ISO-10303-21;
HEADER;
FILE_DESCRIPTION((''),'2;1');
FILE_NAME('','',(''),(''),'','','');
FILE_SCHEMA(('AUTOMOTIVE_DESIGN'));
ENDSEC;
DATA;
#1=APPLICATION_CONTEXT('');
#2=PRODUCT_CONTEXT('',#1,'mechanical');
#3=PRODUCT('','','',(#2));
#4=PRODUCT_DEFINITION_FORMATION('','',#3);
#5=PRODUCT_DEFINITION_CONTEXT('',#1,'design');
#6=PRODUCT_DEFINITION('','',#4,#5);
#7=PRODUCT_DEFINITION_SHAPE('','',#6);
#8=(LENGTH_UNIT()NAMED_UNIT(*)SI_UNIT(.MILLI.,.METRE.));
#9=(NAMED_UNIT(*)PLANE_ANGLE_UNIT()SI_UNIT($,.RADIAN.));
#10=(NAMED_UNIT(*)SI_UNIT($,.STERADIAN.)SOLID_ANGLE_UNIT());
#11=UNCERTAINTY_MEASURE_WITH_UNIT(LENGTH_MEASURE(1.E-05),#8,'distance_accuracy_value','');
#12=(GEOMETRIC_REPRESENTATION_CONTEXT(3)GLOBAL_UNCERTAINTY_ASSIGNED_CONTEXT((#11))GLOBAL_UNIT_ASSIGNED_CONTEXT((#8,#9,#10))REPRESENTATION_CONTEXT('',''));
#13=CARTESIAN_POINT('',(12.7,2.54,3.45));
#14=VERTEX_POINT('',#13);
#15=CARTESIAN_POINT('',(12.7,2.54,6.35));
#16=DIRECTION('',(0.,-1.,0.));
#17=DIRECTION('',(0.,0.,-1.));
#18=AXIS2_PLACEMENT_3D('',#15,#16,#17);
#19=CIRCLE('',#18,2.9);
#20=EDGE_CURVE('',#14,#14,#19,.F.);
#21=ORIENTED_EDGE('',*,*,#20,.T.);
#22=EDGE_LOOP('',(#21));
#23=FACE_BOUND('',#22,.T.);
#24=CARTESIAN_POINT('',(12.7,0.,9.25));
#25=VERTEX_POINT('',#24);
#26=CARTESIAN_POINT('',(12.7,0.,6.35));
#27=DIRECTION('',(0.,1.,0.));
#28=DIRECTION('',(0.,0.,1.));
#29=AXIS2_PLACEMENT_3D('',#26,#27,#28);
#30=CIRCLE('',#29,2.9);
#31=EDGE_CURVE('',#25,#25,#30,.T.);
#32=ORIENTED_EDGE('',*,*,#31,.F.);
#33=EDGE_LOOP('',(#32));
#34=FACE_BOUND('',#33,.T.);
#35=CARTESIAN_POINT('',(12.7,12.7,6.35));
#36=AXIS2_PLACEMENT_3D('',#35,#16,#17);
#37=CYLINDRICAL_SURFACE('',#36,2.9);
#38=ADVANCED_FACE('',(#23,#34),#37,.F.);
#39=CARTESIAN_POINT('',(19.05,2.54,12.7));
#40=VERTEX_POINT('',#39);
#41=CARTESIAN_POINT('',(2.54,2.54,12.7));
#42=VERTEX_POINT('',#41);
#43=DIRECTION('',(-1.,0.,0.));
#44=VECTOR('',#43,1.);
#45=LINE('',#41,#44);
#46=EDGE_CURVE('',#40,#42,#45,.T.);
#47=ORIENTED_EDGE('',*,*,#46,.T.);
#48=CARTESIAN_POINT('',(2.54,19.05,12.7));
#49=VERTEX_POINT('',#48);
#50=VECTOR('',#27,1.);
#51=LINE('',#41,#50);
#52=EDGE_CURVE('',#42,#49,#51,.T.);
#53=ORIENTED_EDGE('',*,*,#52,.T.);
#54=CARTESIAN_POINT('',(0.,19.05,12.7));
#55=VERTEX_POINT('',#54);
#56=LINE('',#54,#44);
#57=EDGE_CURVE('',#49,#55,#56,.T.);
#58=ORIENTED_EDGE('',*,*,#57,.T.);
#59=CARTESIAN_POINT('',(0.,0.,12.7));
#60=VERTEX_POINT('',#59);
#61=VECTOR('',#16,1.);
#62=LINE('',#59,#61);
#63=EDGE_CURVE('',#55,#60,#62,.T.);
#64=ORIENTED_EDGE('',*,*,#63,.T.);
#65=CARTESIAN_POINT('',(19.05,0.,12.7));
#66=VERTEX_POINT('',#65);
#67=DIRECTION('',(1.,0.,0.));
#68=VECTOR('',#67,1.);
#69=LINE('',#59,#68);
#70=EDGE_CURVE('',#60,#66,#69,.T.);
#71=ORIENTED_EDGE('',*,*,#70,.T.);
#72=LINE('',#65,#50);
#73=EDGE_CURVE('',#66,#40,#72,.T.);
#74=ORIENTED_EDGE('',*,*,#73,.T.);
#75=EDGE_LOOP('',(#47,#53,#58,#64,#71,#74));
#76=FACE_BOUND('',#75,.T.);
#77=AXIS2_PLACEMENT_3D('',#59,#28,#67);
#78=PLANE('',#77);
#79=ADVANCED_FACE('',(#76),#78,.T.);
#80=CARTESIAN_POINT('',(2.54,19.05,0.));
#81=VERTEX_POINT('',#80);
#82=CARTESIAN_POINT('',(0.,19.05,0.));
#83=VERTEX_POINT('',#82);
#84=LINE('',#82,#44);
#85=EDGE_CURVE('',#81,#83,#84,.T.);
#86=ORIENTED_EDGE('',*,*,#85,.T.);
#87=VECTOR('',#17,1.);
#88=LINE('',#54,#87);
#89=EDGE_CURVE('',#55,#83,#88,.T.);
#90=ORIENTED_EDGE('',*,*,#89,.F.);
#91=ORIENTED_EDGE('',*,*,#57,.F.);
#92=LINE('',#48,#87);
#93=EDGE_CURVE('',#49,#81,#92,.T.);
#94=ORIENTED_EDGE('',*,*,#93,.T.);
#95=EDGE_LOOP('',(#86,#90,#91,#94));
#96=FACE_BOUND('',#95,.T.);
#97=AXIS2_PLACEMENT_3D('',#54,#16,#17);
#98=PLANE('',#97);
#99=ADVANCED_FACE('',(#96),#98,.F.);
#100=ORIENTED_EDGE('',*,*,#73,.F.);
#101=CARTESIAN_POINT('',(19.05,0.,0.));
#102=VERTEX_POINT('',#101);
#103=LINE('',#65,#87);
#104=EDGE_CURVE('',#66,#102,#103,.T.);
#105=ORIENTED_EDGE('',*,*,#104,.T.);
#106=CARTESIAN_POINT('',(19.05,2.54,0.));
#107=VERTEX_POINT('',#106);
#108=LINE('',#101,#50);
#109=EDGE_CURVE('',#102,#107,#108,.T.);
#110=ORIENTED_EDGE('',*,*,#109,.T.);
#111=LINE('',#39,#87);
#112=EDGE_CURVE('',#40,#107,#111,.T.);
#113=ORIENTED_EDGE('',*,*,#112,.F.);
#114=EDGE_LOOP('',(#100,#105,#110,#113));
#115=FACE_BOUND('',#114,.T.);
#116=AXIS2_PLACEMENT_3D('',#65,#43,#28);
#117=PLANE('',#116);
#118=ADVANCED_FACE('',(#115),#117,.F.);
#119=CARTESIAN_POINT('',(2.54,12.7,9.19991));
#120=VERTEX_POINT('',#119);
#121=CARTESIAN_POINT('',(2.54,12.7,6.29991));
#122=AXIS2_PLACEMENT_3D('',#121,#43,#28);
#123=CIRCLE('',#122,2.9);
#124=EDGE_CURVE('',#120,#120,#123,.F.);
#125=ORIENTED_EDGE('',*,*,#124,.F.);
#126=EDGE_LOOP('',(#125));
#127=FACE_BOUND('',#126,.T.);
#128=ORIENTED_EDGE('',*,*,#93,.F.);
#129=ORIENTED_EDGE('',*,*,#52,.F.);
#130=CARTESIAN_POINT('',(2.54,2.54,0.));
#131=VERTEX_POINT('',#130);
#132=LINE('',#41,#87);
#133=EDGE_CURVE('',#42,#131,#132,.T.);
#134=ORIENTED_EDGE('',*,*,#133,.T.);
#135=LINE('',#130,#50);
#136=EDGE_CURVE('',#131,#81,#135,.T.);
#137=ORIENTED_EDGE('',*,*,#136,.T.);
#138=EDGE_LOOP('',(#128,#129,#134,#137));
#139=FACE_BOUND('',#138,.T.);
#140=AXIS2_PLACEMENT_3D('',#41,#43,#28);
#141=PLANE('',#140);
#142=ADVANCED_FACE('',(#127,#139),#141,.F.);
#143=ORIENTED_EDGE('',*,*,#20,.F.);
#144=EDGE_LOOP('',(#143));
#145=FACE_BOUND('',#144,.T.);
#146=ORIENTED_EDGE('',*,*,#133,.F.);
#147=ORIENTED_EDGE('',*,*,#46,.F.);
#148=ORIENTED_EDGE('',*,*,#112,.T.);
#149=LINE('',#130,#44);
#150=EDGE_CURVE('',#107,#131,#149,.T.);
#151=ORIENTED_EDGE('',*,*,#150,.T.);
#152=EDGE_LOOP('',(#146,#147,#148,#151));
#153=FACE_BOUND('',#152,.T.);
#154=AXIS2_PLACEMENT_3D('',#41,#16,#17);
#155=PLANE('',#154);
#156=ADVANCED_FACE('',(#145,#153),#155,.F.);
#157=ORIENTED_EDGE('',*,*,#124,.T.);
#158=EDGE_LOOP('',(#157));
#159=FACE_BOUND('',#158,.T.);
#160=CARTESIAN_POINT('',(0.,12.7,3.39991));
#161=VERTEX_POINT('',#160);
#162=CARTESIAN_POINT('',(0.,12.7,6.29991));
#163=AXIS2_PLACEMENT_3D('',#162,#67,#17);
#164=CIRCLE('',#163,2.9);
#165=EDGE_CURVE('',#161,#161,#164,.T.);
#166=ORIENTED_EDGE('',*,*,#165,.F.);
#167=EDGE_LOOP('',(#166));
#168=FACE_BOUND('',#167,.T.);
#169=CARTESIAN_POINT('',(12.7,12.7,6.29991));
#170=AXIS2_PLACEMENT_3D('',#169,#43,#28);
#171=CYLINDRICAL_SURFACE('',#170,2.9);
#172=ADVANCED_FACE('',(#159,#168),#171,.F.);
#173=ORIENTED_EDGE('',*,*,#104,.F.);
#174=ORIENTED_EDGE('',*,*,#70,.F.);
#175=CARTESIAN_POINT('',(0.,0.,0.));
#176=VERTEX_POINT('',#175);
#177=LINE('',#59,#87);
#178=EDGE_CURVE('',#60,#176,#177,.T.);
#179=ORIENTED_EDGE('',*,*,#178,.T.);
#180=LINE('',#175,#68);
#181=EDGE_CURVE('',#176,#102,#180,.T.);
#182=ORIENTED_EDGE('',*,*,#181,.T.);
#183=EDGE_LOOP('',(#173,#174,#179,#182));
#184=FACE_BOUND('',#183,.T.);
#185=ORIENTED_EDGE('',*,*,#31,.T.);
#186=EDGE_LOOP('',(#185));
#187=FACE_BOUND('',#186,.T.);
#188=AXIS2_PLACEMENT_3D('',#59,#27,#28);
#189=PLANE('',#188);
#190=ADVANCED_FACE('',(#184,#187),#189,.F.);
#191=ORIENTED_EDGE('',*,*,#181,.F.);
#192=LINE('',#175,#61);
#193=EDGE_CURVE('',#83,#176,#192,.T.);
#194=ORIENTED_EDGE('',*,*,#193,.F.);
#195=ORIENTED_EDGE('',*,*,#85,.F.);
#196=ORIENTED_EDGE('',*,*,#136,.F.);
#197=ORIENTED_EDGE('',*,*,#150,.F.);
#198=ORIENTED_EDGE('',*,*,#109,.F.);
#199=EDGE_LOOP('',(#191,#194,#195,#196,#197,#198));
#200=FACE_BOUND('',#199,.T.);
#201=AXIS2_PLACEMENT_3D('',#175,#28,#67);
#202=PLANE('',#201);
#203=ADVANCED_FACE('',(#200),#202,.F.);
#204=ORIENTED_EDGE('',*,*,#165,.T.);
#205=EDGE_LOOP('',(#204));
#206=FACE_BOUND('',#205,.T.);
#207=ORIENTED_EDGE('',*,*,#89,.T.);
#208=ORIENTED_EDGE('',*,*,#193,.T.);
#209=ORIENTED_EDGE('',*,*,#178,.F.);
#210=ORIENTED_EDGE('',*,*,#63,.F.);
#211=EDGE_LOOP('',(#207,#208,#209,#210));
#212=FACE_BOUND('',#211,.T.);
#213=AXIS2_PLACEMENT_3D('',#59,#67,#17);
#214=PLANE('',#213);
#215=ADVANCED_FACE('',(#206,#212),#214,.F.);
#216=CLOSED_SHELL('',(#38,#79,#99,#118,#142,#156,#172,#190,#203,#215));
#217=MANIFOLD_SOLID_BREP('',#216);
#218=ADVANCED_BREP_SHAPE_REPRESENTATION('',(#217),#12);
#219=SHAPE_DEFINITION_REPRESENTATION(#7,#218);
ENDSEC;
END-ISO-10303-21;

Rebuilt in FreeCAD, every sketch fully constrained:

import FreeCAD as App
import Part
import Sketcher

V = App.Vector
Q = App.Units.Quantity


def add_polygon(sketch, points):
    """Adds a closed chain of lines whose ends are joined by coincident constraints."""
    first, n = sketch.GeometryCount, len(points)
    for a, b in zip(points, points[1:] + points[:1]):
        sketch.addGeometry(Part.LineSegment(App.Vector(*a, 0), App.Vector(*b, 0)), False)
    for i in range(n):
        sketch.addConstraint(Sketcher.Constraint("Coincident", first + i, 2, first + (i + 1) % n, 1))

doc = App.newDocument("Part")
params = doc.addObject("Spreadsheet::Sheet", "Params")
for row, (alias, value) in enumerate([
    ("sketch1_width", "0.1 in"),
    ("sketch1_width2", "0.75 in"),
    ("pad1_length", "0.5 in"),
    ("pocket1_length", "0.5 in"),
    ("pocket2_length", "0.5 in"),
], start=1):
    params.set(f"A{row}", alias)
    params.set(f"B{row}", "=" + value)
    params.setAlias(f"B{row}", alias)

body = doc.addObject("PartDesign::Body", "Body")

# Sketch on XY plane
sketch1 = body.newObject("Sketcher::SketchObject", "Sketch")
sketch1.AttachmentSupport = (doc.getObject("XY_Plane"), [""])
sketch1.MapMode = "FlatFace"
add_polygon(sketch1, [(0, 19.05), (0, 0), (19.05, 0), (19.05, 2.54), (2.54, 2.54), (2.54, 19.05)])  # lines 0-5
sketch1.addConstraint(Sketcher.Constraint("Vertical", 0))
sketch1.addConstraint(Sketcher.Constraint("Horizontal", 1))
sketch1.addConstraint(Sketcher.Constraint("Vertical", 2))
sketch1.addConstraint(Sketcher.Constraint("Horizontal", 3))
sketch1.addConstraint(Sketcher.Constraint("Vertical", 4))
sketch1.addConstraint(Sketcher.Constraint("Horizontal", 5))
sketch1.addConstraint(Sketcher.Constraint("Coincident", 0, 2, -1, 1))
sketch1.addConstraint(Sketcher.Constraint("Equal", 1, 0))
sketch1.addConstraint(Sketcher.Constraint("Equal", 5, 2))
sketch1.addConstraint(Sketcher.Constraint("DistanceX", 5, 2, 5, 1, Q("0.1 in")))
sketch1.addConstraint(Sketcher.Constraint("DistanceX", 1, 1, 1, 2, Q("0.75 in")))
sketch1.setExpression("Constraints[15]", "Params.sketch1_width")
sketch1.setExpression("Constraints[16]", "Params.sketch1_width2")
pad1 = body.newObject("PartDesign::Pad", "Pad")
pad1.Profile = sketch1
pad1.setExpression("Length", "Params.pad1_length")

# Sketch on YZ plane
sketch2 = body.newObject("Sketcher::SketchObject", "Sketch001")
sketch2.AttachmentSupport = (doc.getObject("YZ_Plane"), [""])
sketch2.MapMode = "FlatFace"
sketch2.addGeometry(Part.Circle(V(12.7, 6.29991, 0), V(0, 0, 1), 2.9), False)
sketch2.addConstraint(Sketcher.Constraint("DistanceX", -1, 1, 0, 3, Q("0.5 in")))
sketch2.addConstraint(Sketcher.Constraint("Diameter", 0, Q("5.8 mm")))
sketch2.addConstraint(Sketcher.Constraint("DistanceY", -1, 1, 0, 3, Q("6.29991 mm")))
pocket1 = body.newObject("PartDesign::Pocket", "Pocket")
pocket1.Profile = sketch2
pocket1.setExpression("Length", "Params.pocket1_length")
pocket1.Reversed = True

# Sketch on XZ plane
sketch3 = body.newObject("Sketcher::SketchObject", "Sketch002")
sketch3.AttachmentSupport = (doc.getObject("XZ_Plane"), [""])
sketch3.MapMode = "FlatFace"
sketch3.addGeometry(Part.Circle(V(12.7, 6.35, 0), V(0, 0, 1), 2.9), False)
sketch3.addConstraint(Sketcher.Constraint("DistanceX", -1, 1, 0, 3, Q("0.5 in")))
sketch3.addConstraint(Sketcher.Constraint("Diameter", 0, Q("5.8 mm")))
sketch3.addConstraint(Sketcher.Constraint("DistanceY", -1, 1, 0, 3, Q("0.25 in")))
pocket2 = body.newObject("PartDesign::Pocket", "Pocket001")
pocket2.Profile = sketch3
pocket2.setExpression("Length", "Params.pocket2_length")

doc.recompute()
